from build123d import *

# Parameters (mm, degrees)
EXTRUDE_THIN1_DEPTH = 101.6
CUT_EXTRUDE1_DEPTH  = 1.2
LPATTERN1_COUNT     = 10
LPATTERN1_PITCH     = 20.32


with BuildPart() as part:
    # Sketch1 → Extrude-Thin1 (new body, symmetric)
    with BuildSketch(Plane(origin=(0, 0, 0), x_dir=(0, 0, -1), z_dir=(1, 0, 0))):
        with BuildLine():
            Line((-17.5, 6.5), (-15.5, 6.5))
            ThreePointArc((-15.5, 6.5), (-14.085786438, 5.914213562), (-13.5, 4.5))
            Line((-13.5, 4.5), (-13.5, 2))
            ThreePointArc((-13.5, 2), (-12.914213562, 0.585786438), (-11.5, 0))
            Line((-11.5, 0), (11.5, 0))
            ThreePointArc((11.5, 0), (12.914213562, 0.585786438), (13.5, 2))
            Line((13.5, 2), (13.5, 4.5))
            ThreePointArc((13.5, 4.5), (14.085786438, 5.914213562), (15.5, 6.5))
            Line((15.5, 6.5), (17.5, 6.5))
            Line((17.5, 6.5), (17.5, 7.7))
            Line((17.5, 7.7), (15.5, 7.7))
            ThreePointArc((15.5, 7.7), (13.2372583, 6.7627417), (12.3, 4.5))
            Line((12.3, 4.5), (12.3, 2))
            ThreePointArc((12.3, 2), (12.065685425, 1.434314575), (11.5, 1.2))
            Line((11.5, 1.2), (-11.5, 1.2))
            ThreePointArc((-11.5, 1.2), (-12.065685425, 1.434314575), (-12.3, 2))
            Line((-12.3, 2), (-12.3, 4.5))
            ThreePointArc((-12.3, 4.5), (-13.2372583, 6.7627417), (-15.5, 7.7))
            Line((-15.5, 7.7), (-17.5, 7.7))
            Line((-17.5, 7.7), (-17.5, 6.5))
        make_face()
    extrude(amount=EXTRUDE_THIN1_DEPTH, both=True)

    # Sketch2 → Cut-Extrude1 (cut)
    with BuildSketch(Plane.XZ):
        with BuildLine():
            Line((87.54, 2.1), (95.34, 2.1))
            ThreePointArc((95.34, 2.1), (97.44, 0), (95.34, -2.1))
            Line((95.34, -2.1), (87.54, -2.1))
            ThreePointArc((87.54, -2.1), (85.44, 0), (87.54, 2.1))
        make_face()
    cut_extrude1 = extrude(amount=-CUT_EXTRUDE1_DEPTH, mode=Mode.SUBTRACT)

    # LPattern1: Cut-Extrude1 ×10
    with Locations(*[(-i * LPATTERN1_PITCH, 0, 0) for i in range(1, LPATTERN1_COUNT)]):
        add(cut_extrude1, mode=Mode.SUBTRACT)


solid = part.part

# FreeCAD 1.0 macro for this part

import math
import FreeCAD as App
import Part
import Sketcher

doc = App.newDocument("Part")
params = doc.addObject("Spreadsheet::Sheet", "Params")
for row, (alias, value) in enumerate([
    ("sketch1_radius", "2 mm"),
    ("sketch1_radius2", "3.2 mm"),
    ("sketch1_height", "2 mm"),
    ("sketch1_height2", "23 mm"),
    ("sketch1_width", "2.5 mm"),
    ("pad1_length", "203.2 mm"),
    ("sketch2_radius", "2.1 mm"),
    ("sketch2_width", "7.8 mm"),
    ("pocket1_length", "1.2 mm"),
    ("linearpattern_pitch", "20.32 mm"),
], start=1):
    params.set(f"A{row}", alias)
    params.set(f"B{row}", "=" + value)
    params.setAlias(f"B{row}", alias)

body = doc.addObject("PartDesign::Body", "Body")

# Sketch on YZ plane
sketch1 = doc.addObject("Sketcher::SketchObject", "Sketch")
body.addObject(sketch1)
sketch1.AttachmentSupport = (doc.YZ_Plane, [""])
sketch1.MapMode = "FlatFace"
sketch1.addGeometry([
    Part.LineSegment(App.Vector(6.5, 17.5, 0), App.Vector(6.5, 15.5, 0)),  # 0
    Part.ArcOfCircle(Part.Circle(App.Vector(4.5, 15.5, 0), App.Vector(0, 0, 1), 2), math.radians(-90), math.radians(0)),  # 1
    Part.LineSegment(App.Vector(4.5, 13.5, 0), App.Vector(2, 13.5, 0)),  # 2
    Part.ArcOfCircle(Part.Circle(App.Vector(2, 11.5, 0), App.Vector(0, 0, 1), 2), math.radians(90), math.radians(180)),  # 3
    Part.LineSegment(App.Vector(0, 11.5, 0), App.Vector(0, -11.5, 0)),  # 4
    Part.ArcOfCircle(Part.Circle(App.Vector(2, -11.5, 0), App.Vector(0, 0, 1), 2), math.radians(-180), math.radians(-90)),  # 5
    Part.LineSegment(App.Vector(2, -13.5, 0), App.Vector(4.5, -13.5, 0)),  # 6
    Part.ArcOfCircle(Part.Circle(App.Vector(4.5, -15.5, 0), App.Vector(0, 0, 1), 2), math.radians(0), math.radians(90)),  # 7
    Part.LineSegment(App.Vector(6.5, -15.5, 0), App.Vector(6.5, -17.5, 0)),  # 8
    Part.LineSegment(App.Vector(6.5, -17.5, 0), App.Vector(7.7, -17.5, 0)),  # 9
    Part.LineSegment(App.Vector(7.7, -17.5, 0), App.Vector(7.7, -15.5, 0)),  # 10
    Part.ArcOfCircle(Part.Circle(App.Vector(4.5, -15.5, 0), App.Vector(0, 0, 1), 3.2), math.radians(0), math.radians(90)),  # 11
    Part.LineSegment(App.Vector(4.5, -12.3, 0), App.Vector(2, -12.3, 0)),  # 12
    Part.ArcOfCircle(Part.Circle(App.Vector(2, -11.5, 0), App.Vector(0, 0, 1), 0.8), math.radians(180), math.radians(270)),  # 13
    Part.LineSegment(App.Vector(1.2, -11.5, 0), App.Vector(1.2, 11.5, 0)),  # 14
    Part.ArcOfCircle(Part.Circle(App.Vector(2, 11.5, 0), App.Vector(0, 0, 1), 0.8), math.radians(90), math.radians(180)),  # 15
    Part.LineSegment(App.Vector(2, 12.3, 0), App.Vector(4.5, 12.3, 0)),  # 16
    Part.ArcOfCircle(Part.Circle(App.Vector(4.5, 15.5, 0), App.Vector(0, 0, 1), 3.2), math.radians(-90), math.radians(0)),  # 17
    Part.LineSegment(App.Vector(7.7, 15.5, 0), App.Vector(7.7, 17.5, 0)),  # 18
    Part.LineSegment(App.Vector(7.7, 17.5, 0), App.Vector(6.5, 17.5, 0)),  # 19
], False)
sketch1.addConstraint([
    Sketcher.Constraint("Tangent", 0, 2, 1, 2),
    Sketcher.Constraint("Tangent", 1, 1, 2, 1),
    Sketcher.Constraint("Tangent", 2, 2, 3, 1),
    Sketcher.Constraint("Tangent", 3, 2, 4, 1),
    Sketcher.Constraint("Tangent", 4, 2, 5, 1),
    Sketcher.Constraint("Tangent", 5, 2, 6, 1),
    Sketcher.Constraint("Tangent", 6, 2, 7, 2),
    Sketcher.Constraint("Tangent", 7, 1, 8, 1),
    Sketcher.Constraint("Coincident", 8, 2, 9, 1),
    Sketcher.Constraint("Coincident", 9, 2, 10, 1),
    Sketcher.Constraint("Tangent", 10, 2, 11, 1),
    Sketcher.Constraint("Tangent", 11, 2, 12, 1),
    Sketcher.Constraint("Tangent", 12, 2, 13, 2),
    Sketcher.Constraint("Tangent", 13, 1, 14, 1),
    Sketcher.Constraint("Tangent", 14, 2, 15, 2),
    Sketcher.Constraint("Tangent", 15, 1, 16, 1),
    Sketcher.Constraint("Tangent", 16, 2, 17, 1),
    Sketcher.Constraint("Tangent", 17, 2, 18, 1),
    Sketcher.Constraint("Coincident", 18, 2, 19, 1),
    Sketcher.Constraint("Coincident", 19, 2, 0, 1),
    Sketcher.Constraint("Vertical", 0),
    Sketcher.Constraint("Horizontal", 2),
    Sketcher.Constraint("Vertical", 4),
    Sketcher.Constraint("Horizontal", 6),
    Sketcher.Constraint("Vertical", 8),
    Sketcher.Constraint("Horizontal", 9),
    Sketcher.Constraint("Vertical", 10),
    Sketcher.Constraint("Horizontal", 12),
    Sketcher.Constraint("Vertical", 14),
    Sketcher.Constraint("Horizontal", 16),
    Sketcher.Constraint("Vertical", 18),
    Sketcher.Constraint("Horizontal", 19),
    Sketcher.Constraint("Coincident", 11, 3, 7, 3),
    Sketcher.Constraint("Coincident", 13, 3, 5, 3),
    Sketcher.Constraint("Coincident", 15, 3, 3, 3),
    Sketcher.Constraint("Coincident", 17, 3, 1, 3),
    Sketcher.Constraint("Equal", 1, 3),
    Sketcher.Constraint("Equal", 3, 5),
    Sketcher.Constraint("Equal", 5, 7),
    Sketcher.Constraint("Symmetric", 3, 2, 4, 2, -1, 1),
    Sketcher.Constraint("Symmetric", 9, 2, 18, 2, -1),
    Sketcher.Constraint("Radius", 1, 2.0),
    Sketcher.Constraint("Radius", 11, 3.2),
    Sketcher.Constraint("DistanceY", 0, 2, 0, 1, 2.0),
    Sketcher.Constraint("DistanceY", 4, 2, 4, 1, 23.0),
    Sketcher.Constraint("DistanceX", 2, 2, 2, 1, 2.5),
])
sketch1.setExpression("Constraints[41]", "Params.sketch1_radius")
sketch1.setExpression("Constraints[42]", "Params.sketch1_radius2")
sketch1.setExpression("Constraints[43]", "Params.sketch1_height")
sketch1.setExpression("Constraints[44]", "Params.sketch1_height2")
sketch1.setExpression("Constraints[45]", "Params.sketch1_width")
pad1 = doc.addObject("PartDesign::Pad", "Pad")
body.addObject(pad1)
pad1.Profile = sketch1
pad1.setExpression("Length", "Params.pad1_length")
pad1.Midplane = True

# Sketch on XZ plane
sketch2 = doc.addObject("Sketcher::SketchObject", "Sketch001")
body.addObject(sketch2)
sketch2.AttachmentSupport = (doc.XZ_Plane, [""])
sketch2.MapMode = "FlatFace"
sketch2.addGeometry([
    Part.LineSegment(App.Vector(95.34, 2.1, 0), App.Vector(87.54, 2.1, 0)),
    Part.ArcOfCircle(Part.Circle(App.Vector(87.54, 0, 0), App.Vector(0, 0, 1), 2.1), math.radians(90), math.radians(270)),
    Part.LineSegment(App.Vector(87.54, -2.1, 0), App.Vector(95.34, -2.1, 0)),
    Part.ArcOfCircle(Part.Circle(App.Vector(95.34, 0, 0), App.Vector(0, 0, 1), 2.1), math.radians(-90), math.radians(90)),
], False)
sketch2.addConstraint([
    Sketcher.Constraint("Tangent", 0, 2, 1, 1),
    Sketcher.Constraint("Tangent", 1, 2, 2, 1),
    Sketcher.Constraint("Tangent", 2, 2, 3, 1),
    Sketcher.Constraint("Tangent", 3, 2, 0, 1),
    Sketcher.Constraint("Horizontal", 0),
    Sketcher.Constraint("Horizontal", 2),
    Sketcher.Constraint("PointOnObject", 1, 3, -1),
    Sketcher.Constraint("Radius", 1, 2.1),
    Sketcher.Constraint("DistanceX", 0, 2, 0, 1, 7.8),
    Sketcher.Constraint("DistanceX", -1, 1, 1, 3, 87.54),
])
sketch2.setExpression("Constraints[7]", "Params.sketch2_radius")
sketch2.setExpression("Constraints[8]", "Params.sketch2_width")
pocket1 = doc.addObject("PartDesign::Pocket", "Pocket")
body.addObject(pocket1)
pocket1.Profile = sketch2
pocket1.setExpression("Length", "Params.pocket1_length")
doc.recompute()

linearpattern = doc.addObject("PartDesign::LinearPattern", "LinearPattern")
body.addObject(linearpattern)
linearpattern.Originals = [pocket1]
linearpattern.Direction = (doc.X_Axis, [""])
linearpattern.Mode = "offset"
linearpattern.setExpression("Offset", "Params.linearpattern_pitch")
linearpattern.Occurrences = 10
linearpattern.Reversed = True
body.Tip = linearpattern

doc.recompute()
